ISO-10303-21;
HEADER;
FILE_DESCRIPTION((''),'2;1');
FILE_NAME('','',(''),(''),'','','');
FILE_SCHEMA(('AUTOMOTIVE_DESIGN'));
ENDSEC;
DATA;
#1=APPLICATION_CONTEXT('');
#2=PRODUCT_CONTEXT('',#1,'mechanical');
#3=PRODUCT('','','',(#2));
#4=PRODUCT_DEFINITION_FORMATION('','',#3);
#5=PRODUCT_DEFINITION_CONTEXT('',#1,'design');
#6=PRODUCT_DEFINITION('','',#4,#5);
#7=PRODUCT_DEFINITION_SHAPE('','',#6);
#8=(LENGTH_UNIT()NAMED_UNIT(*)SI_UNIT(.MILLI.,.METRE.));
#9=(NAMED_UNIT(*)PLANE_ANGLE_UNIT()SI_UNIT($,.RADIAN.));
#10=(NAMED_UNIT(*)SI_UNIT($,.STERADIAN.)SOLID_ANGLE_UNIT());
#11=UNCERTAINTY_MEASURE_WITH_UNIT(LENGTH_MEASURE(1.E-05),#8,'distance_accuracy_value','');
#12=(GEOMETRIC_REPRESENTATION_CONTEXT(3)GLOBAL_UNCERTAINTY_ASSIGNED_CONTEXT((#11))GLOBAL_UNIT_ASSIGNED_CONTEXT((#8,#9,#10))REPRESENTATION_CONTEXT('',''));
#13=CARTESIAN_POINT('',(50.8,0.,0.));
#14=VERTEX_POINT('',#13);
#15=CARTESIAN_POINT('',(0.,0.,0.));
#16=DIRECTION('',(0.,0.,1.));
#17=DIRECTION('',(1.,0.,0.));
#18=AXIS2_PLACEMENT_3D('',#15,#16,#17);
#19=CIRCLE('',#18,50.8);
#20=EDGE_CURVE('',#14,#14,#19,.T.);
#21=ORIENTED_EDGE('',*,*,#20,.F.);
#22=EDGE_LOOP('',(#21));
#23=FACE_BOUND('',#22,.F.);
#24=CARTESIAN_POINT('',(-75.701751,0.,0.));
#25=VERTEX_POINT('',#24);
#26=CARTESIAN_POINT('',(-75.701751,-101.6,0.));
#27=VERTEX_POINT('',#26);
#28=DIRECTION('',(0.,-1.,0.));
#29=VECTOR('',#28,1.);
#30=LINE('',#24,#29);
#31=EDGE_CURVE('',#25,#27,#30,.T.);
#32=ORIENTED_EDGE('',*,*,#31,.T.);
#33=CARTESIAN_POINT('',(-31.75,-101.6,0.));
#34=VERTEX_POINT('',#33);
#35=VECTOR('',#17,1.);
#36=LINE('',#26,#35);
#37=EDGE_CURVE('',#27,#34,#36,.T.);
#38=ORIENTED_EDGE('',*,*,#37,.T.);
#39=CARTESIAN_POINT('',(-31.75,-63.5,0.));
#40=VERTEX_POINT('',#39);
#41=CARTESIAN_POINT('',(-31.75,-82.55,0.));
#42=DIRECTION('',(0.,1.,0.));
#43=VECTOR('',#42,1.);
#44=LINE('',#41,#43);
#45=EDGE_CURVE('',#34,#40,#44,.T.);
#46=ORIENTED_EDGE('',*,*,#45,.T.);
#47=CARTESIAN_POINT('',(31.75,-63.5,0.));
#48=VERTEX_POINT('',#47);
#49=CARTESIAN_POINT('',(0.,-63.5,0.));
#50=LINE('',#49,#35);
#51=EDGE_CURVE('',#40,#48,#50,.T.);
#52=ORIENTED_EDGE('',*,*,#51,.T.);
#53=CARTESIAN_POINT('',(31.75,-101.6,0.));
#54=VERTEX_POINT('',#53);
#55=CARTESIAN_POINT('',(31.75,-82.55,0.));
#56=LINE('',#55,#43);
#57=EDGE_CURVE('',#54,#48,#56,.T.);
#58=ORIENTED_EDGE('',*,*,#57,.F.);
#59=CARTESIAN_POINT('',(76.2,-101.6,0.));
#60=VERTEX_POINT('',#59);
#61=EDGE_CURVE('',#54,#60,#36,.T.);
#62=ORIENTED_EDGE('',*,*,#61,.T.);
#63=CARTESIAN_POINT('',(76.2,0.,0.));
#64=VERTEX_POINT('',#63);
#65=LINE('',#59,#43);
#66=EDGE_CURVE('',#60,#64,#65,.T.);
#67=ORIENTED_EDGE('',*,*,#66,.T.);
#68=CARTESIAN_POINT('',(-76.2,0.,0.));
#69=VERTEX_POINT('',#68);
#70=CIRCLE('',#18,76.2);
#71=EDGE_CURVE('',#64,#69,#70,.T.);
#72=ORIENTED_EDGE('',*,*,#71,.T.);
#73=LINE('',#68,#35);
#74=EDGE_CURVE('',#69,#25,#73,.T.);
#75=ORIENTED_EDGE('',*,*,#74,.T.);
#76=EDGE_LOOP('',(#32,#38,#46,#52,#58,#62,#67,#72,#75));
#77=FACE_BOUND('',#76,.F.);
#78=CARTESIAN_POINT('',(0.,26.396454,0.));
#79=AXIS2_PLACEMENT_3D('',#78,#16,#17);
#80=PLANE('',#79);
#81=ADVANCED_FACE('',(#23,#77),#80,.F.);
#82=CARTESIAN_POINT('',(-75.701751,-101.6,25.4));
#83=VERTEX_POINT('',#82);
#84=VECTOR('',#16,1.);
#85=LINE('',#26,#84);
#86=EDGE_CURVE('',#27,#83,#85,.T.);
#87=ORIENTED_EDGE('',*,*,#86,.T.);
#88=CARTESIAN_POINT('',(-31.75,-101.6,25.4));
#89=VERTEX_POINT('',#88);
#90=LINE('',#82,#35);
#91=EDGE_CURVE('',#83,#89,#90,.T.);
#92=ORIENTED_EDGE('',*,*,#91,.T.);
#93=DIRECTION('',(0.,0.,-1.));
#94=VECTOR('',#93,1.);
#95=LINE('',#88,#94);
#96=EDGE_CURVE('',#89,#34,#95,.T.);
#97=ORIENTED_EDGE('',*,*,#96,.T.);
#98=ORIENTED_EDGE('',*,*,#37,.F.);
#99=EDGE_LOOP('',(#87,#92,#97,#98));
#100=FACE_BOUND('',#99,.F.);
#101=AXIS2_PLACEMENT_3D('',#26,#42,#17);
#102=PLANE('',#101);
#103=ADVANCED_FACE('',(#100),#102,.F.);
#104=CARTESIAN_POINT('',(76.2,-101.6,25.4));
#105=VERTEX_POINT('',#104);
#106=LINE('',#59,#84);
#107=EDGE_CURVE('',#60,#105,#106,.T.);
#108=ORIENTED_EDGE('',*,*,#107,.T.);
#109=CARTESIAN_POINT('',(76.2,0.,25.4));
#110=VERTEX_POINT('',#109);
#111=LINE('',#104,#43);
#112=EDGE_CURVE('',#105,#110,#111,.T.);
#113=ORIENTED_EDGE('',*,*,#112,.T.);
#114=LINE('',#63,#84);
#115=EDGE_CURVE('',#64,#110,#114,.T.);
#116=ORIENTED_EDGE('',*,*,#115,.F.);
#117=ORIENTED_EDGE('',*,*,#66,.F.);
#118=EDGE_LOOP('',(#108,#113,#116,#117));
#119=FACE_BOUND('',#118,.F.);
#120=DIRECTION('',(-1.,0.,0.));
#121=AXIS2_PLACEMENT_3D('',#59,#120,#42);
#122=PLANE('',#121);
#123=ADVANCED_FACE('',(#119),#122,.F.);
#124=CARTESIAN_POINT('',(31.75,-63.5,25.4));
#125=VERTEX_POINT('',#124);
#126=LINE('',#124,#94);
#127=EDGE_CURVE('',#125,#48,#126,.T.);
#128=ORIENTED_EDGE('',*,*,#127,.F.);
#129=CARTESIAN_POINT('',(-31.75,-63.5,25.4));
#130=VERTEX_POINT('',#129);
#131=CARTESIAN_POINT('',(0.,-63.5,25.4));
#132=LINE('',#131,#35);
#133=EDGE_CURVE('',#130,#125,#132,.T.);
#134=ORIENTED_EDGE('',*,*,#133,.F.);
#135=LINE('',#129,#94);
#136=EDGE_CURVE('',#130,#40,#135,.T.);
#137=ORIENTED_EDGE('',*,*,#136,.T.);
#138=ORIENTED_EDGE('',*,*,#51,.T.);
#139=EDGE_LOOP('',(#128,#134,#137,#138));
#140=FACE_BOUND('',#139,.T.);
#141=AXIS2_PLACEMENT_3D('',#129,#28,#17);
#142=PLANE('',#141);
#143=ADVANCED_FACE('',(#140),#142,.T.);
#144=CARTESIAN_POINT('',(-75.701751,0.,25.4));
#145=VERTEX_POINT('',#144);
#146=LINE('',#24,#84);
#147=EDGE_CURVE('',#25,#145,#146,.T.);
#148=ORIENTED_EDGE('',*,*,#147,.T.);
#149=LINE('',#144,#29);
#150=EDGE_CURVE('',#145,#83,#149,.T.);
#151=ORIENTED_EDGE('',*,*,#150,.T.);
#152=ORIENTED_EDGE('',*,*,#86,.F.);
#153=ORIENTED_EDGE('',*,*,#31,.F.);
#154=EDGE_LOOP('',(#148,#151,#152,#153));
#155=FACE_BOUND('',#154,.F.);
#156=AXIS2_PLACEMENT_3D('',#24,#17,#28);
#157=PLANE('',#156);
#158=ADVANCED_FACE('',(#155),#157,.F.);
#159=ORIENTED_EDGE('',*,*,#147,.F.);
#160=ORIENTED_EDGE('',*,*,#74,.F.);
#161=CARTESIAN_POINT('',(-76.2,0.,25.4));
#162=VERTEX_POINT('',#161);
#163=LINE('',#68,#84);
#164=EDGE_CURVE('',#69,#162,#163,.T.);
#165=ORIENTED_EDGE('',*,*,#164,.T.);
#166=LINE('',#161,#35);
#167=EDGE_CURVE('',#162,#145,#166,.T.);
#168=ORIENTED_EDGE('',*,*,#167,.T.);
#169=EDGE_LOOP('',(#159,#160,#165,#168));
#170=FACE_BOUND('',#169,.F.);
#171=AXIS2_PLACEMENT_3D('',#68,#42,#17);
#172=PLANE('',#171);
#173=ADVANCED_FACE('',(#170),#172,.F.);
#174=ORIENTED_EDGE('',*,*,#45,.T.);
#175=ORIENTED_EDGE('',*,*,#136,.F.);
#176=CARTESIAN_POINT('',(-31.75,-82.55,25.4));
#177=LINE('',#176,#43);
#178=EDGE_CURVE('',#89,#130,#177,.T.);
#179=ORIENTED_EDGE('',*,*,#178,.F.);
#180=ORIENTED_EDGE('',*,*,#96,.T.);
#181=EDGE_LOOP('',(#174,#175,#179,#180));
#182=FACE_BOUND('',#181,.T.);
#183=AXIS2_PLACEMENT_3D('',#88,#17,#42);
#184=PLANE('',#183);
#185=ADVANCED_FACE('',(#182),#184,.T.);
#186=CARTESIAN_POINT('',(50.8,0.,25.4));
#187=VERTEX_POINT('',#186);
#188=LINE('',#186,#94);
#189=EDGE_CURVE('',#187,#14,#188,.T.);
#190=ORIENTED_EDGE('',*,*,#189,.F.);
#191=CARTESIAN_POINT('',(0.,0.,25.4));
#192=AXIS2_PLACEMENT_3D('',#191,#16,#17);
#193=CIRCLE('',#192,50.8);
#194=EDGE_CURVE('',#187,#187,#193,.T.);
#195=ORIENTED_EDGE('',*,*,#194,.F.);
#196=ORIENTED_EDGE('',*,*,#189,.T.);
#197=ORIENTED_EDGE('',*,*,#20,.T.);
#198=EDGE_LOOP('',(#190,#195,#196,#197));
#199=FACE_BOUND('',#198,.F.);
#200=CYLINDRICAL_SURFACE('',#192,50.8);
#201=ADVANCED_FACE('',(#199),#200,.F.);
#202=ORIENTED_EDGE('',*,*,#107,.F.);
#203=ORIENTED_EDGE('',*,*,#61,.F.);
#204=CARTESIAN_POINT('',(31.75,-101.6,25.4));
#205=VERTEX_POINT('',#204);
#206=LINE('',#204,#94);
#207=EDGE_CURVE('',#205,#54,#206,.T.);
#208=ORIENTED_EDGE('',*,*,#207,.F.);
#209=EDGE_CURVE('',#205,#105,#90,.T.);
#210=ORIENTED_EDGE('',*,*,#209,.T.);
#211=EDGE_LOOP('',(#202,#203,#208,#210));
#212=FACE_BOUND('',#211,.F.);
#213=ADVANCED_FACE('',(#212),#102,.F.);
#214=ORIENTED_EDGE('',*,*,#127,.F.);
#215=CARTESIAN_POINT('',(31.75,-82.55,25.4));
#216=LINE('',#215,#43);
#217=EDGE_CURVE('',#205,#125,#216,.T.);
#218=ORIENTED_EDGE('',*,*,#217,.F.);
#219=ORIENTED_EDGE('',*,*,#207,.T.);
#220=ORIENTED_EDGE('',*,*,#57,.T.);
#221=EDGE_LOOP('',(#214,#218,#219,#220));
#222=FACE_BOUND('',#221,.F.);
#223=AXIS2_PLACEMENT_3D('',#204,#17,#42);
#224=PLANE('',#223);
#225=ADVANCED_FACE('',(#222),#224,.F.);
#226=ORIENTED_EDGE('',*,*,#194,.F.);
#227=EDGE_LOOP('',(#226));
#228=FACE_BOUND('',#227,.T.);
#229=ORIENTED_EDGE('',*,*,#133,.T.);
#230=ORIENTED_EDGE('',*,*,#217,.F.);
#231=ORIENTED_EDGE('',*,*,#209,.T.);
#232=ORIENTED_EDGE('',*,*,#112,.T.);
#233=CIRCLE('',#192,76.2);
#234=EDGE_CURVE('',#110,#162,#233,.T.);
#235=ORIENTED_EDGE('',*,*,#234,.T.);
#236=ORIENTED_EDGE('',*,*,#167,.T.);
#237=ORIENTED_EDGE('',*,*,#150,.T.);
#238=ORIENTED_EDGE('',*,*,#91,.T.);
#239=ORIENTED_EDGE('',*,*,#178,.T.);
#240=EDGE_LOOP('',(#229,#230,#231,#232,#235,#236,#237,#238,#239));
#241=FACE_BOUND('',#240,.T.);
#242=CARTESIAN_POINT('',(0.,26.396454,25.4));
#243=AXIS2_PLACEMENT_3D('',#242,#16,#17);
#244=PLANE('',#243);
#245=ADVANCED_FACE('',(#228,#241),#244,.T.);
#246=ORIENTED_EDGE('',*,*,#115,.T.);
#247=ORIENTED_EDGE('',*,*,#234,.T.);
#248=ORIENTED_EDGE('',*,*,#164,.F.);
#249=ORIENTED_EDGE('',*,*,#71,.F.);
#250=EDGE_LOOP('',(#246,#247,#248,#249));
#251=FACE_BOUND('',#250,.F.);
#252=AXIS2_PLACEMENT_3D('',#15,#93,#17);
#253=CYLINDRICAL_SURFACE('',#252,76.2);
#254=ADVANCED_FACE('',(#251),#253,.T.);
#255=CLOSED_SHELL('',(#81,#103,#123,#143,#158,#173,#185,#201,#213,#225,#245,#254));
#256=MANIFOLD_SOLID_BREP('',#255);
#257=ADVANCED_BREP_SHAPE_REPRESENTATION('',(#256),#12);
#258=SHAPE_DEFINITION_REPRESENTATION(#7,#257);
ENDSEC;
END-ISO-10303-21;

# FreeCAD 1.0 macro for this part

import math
import FreeCAD as App
import Part
import Sketcher
from FreeCAD import Vector
Q = App.Units.Quantity


def add_polygon(sketch, points):
    """Adds a closed chain of lines whose ends are joined by coincident constraints."""
    first, n = sketch.GeometryCount, len(points)
    for a, b in zip(points, points[1:] + points[:1]):
        sketch.addGeometry(Part.LineSegment(App.Vector(*a, 0), App.Vector(*b, 0)), False)
    for i in range(n):
        sketch.addConstraint(Sketcher.Constraint("Coincident", first + i, 2, first + (i + 1) % n, 1))

doc = App.newDocument("Part")
body = doc.addObject("PartDesign::Body", "Body")

# Sketch on XY plane
sketch1 = body.newObject("Sketcher::SketchObject", "Sketch")
sketch1.AttachmentSupport = (doc.getObject("XY_Plane"), [""])
sketch1.MapMode = "FlatFace"
sketch1.addGeometry(Part.ArcOfCircle(Part.Circle(Vector(0, 0, 0), Vector(0, 0, 1), 76.2), math.radians(0), math.radians(180)), False)
sketch1.addGeometry(Part.LineSegment(Vector(-76.2, 0, 0), Vector(-75.7, 0, 0)), False)
sketch1.addGeometry(Part.LineSegment(Vector(-75.7, 0, 0), Vector(-75.7, -101.6, 0)), False)
sketch1.addGeometry(Part.LineSegment(Vector(-75.7, -101.6, 0), Vector(76.2, -101.6, 0)), False)
sketch1.addGeometry(Part.LineSegment(Vector(76.2, -101.6, 0), Vector(76.2, 0, 0)), False)
sketch1.addConstraint(Sketcher.Constraint("Coincident", 0, 2, 1, 1))
sketch1.addConstraint(Sketcher.Constraint("Coincident", 1, 2, 2, 1))
sketch1.addConstraint(Sketcher.Constraint("Coincident", 2, 2, 3, 1))
sketch1.addConstraint(Sketcher.Constraint("Coincident", 3, 2, 4, 1))
sketch1.addConstraint(Sketcher.Constraint("Tangent", 4, 2, 0, 1))
sketch1.addConstraint(Sketcher.Constraint("Horizontal", 1))
sketch1.addConstraint(Sketcher.Constraint("Vertical", 2))
sketch1.addConstraint(Sketcher.Constraint("Horizontal", 3))
sketch1.addConstraint(Sketcher.Constraint("Vertical", 4))
sketch1.addConstraint(Sketcher.Constraint("Coincident", 0, 3, -1, 1))
sketch1.addConstraint(Sketcher.Constraint("PointOnObject", 0, 2, -1))
sketch1.addConstraint(Sketcher.Constraint("Radius", 0, Q("3 in")))
sketch1.addConstraint(Sketcher.Constraint("DistanceY", 2, 2, 2, 1, Q("4 in")))
sketch1.addConstraint(Sketcher.Constraint("DistanceX", 1, 1, 1, 2, Q("0.498249 mm")))
pad1 = body.newObject("PartDesign::Pad", "Pad")
pad1.Profile = sketch1
pad1.Length = Q("1 in")

# Sketch on XY plane
sketch2 = body.newObject("Sketcher::SketchObject", "Sketch001")
sketch2.AttachmentSupport = (doc.getObject("XY_Plane"), [""])
sketch2.MapMode = "FlatFace"
sketch2.AttachmentOffset = App.Placement(Vector(0, 0, 1 * 25.4), App.Rotation())
sketch2.addGeometry(Part.Circle(Vector(0, 0, 0), Vector(0, 0, 1), 51), False)
sketch2.addConstraint(Sketcher.Constraint("Coincident", 0, 3, -1, 1))
sketch2.addConstraint(Sketcher.Constraint("Diameter", 0, Q("4 in")))
pocket1 = body.newObject("PartDesign::Pocket", "Pocket")
pocket1.Profile = sketch2
pocket1.Length = Q("1 in")

# Sketch on XY plane
sketch3 = body.newObject("Sketcher::SketchObject", "Sketch002")
sketch3.AttachmentSupport = (doc.getObject("XY_Plane"), [""])
sketch3.MapMode = "FlatFace"
sketch3.AttachmentOffset = App.Placement(Vector(0, 0, 1 * 25.4), App.Rotation())
add_polygon(sketch3, [(-32, -64), (-32, -102), (32, -102), (32, -64)])  # lines 0-3
sketch3.addConstraint(Sketcher.Constraint("Vertical", 0))
sketch3.addConstraint(Sketcher.Constraint("Horizontal", 1))
sketch3.addConstraint(Sketcher.Constraint("Vertical", 2))
sketch3.addConstraint(Sketcher.Constraint("Horizontal", 3))
sketch3.addConstraint(Sketcher.Constraint("DistanceX", 1, 1, 1, 2, Q("2.5 in")))
sketch3.addConstraint(Sketcher.Constraint("DistanceY", 0, 2, 0, 1, Q("1.5 in")))
sketch3.addConstraint(Sketcher.Constraint("DistanceY", 0, 2, -1, 1, Q("4 in")))
sketch3.addConstraint(Sketcher.Constraint("DistanceX", 0, 2, -1, 1, Q("1.25 in")))
pocket2 = body.newObject("PartDesign::Pocket", "Pocket001")
pocket2.Profile = sketch3
pocket2.Length = Q("1 in")

doc.recompute()
